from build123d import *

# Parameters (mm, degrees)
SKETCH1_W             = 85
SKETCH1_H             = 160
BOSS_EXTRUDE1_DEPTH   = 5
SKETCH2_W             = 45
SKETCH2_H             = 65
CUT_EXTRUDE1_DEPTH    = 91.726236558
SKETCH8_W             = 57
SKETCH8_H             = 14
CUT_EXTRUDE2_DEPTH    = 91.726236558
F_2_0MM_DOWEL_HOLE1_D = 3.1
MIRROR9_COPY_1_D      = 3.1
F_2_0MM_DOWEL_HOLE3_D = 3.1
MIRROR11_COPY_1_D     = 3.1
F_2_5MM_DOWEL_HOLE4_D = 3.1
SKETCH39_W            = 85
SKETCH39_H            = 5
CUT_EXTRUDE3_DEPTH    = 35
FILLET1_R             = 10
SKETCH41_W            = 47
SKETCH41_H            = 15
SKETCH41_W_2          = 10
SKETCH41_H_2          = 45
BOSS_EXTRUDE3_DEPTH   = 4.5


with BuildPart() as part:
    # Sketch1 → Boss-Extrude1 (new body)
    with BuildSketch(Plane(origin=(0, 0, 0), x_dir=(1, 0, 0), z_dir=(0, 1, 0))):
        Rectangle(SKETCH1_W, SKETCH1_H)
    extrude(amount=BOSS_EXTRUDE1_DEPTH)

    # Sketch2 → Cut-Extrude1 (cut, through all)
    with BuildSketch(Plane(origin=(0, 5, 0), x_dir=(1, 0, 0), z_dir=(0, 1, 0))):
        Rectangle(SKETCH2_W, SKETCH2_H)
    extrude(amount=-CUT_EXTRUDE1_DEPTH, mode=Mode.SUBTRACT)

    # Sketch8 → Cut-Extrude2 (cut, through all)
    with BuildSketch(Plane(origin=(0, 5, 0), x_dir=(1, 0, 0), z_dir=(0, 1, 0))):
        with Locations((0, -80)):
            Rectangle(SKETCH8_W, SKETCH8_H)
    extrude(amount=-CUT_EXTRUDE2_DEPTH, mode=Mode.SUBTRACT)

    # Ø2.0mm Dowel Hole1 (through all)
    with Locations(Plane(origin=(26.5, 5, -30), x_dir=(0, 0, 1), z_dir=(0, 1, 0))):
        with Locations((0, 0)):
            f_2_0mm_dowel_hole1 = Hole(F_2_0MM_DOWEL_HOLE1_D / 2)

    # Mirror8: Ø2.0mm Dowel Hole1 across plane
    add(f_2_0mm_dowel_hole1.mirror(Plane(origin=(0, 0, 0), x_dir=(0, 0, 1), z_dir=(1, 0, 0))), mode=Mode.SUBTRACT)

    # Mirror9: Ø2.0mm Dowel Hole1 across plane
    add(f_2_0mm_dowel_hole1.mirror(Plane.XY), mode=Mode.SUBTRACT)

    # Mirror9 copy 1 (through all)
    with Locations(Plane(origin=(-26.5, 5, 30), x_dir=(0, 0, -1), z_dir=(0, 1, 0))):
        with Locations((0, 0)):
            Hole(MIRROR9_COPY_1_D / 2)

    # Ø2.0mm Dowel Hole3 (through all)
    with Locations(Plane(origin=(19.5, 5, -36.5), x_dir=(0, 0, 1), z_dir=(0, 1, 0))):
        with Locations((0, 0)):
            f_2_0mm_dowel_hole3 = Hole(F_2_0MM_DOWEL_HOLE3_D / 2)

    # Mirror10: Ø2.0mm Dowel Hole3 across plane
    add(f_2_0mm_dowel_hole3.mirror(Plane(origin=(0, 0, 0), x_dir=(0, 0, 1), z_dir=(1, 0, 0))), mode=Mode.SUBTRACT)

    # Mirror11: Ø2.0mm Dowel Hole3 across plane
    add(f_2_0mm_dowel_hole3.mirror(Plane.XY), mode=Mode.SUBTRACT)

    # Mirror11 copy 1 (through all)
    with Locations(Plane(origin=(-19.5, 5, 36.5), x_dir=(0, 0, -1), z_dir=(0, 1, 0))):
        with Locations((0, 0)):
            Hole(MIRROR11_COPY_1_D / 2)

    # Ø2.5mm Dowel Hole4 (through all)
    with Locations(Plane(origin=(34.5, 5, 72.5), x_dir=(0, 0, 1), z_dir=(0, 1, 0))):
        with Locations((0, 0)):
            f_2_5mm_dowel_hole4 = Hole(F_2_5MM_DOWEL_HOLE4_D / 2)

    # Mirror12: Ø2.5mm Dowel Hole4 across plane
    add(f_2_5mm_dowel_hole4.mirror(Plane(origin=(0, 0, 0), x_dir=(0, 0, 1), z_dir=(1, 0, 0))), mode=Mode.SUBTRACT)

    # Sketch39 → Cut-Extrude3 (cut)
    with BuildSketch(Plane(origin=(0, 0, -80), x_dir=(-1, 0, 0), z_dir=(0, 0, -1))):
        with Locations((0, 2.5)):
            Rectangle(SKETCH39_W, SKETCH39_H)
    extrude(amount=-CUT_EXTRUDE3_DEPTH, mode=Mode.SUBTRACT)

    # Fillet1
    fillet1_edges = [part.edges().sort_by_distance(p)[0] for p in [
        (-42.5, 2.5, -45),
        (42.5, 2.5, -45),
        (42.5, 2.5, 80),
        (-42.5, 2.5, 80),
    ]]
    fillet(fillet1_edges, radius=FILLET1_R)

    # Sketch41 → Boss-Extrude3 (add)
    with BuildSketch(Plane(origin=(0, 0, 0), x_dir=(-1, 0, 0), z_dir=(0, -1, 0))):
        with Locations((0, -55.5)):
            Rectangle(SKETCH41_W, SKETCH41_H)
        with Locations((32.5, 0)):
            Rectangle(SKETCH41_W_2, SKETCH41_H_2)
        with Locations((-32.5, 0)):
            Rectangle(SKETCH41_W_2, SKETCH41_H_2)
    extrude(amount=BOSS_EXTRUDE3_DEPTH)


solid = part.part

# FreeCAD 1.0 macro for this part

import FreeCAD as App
import Part
import Sketcher
from FreeCAD import Vector


def edges_at(feature, points):
    """Names of the edges that pass closest to the given points."""
    edges = feature.Shape.Edges
    near = lambda p: min(range(len(edges)), key=lambda i: edges[i].distToShape(Part.Vertex(*p))[0])
    return sorted({f"Edge{near(p) + 1}" for p in points})


def add_polygon(sketch, points):
    """Adds a closed chain of lines whose ends are joined by coincident constraints."""
    first, n = sketch.GeometryCount, len(points)
    for a, b in zip(points, points[1:] + points[:1]):
        sketch.addGeometry(Part.LineSegment(App.Vector(*a, 0), App.Vector(*b, 0)), False)
    for i in range(n):
        sketch.addConstraint(Sketcher.Constraint("Coincident", first + i, 2, first + (i + 1) % n, 1))

doc = App.newDocument("Part")
body = doc.addObject("PartDesign::Body", "Body")

# Sketch on XZ plane
sketch1 = body.newObject("Sketcher::SketchObject", "Sketch")
sketch1.AttachmentSupport = (doc.getObject("XZ_Plane"), [""])
sketch1.MapMode = "FlatFace"
add_polygon(sketch1, [(-42.5, -80), (-42.5, 80), (42.5, 80), (42.5, -80)])  # lines 0-3
sketch1.addConstraint(Sketcher.Constraint("Vertical", 0))
sketch1.addConstraint(Sketcher.Constraint("Horizontal", 1))
sketch1.addConstraint(Sketcher.Constraint("Vertical", 2))
sketch1.addConstraint(Sketcher.Constraint("Horizontal", 3))
sketch1.addConstraint(Sketcher.Constraint("Symmetric", 0, 2, 2, 2, -1, 1))
sketch1.addConstraint(Sketcher.Constraint("DistanceX", 1, 1, 1, 2, 85.0))
sketch1.addConstraint(Sketcher.Constraint("DistanceY", 0, 1, 0, 2, 160.0))
pad1 = body.newObject("PartDesign::Pad", "Pad")
pad1.Profile = sketch1
pad1.Length = 5
pad1.Reversed = True

# Sketch on XZ plane
sketch2 = body.newObject("Sketcher::SketchObject", "Sketch001")
sketch2.AttachmentSupport = (doc.getObject("XZ_Plane"), [""])
sketch2.MapMode = "FlatFace"
sketch2.AttachmentOffset = App.Placement(Vector(0, 0, -5), App.Rotation())
add_polygon(sketch2, [(-22.5, -32.5), (-22.5, 32.5), (22.5, 32.5), (22.5, -32.5)])  # lines 0-3
sketch2.addConstraint(Sketcher.Constraint("Vertical", 0))
sketch2.addConstraint(Sketcher.Constraint("Horizontal", 1))
sketch2.addConstraint(Sketcher.Constraint("Vertical", 2))
sketch2.addConstraint(Sketcher.Constraint("Horizontal", 3))
sketch2.addConstraint(Sketcher.Constraint("Symmetric", 0, 2, 2, 2, -1, 1))
sketch2.addConstraint(Sketcher.Constraint("DistanceX", 1, 1, 1, 2, 45.0))
sketch2.addConstraint(Sketcher.Constraint("DistanceY", 0, 1, 0, 2, 65.0))
pocket1 = body.newObject("PartDesign::Pocket", "Pocket")
pocket1.Profile = sketch2
pocket1.Type = "ThroughAll"
pocket1.Reversed = True

# Sketch on XZ plane
sketch3 = body.newObject("Sketcher::SketchObject", "Sketch002")
sketch3.AttachmentSupport = (doc.getObject("XZ_Plane"), [""])
sketch3.MapMode = "FlatFace"
sketch3.AttachmentOffset = App.Placement(Vector(0, 0, -5), App.Rotation())
add_polygon(sketch3, [(-28.5, 73), (-28.5, 87), (28.5, 87), (28.5, 73)])  # lines 0-3
sketch3.addConstraint(Sketcher.Constraint("Vertical", 0))
sketch3.addConstraint(Sketcher.Constraint("Horizontal", 1))
sketch3.addConstraint(Sketcher.Constraint("Vertical", 2))
sketch3.addConstraint(Sketcher.Constraint("Horizontal", 3))
sketch3.addConstraint(Sketcher.Constraint("DistanceX", 1, 1, 1, 2, 57.0))
sketch3.addConstraint(Sketcher.Constraint("DistanceY", 0, 1, 0, 2, 14.0))
sketch3.addConstraint(Sketcher.Constraint("DistanceY", -1, 1, 0, 2, 87.0))
sketch3.addConstraint(Sketcher.Constraint("DistanceX", 0, 2, -1, 1, 28.5))
pocket2 = body.newObject("PartDesign::Pocket", "Pocket001")
pocket2.Profile = sketch3
pocket2.Type = "ThroughAll"
pocket2.Reversed = True

# Sketch on XZ plane
sketch4 = body.newObject("Sketcher::SketchObject", "Sketch003")
sketch4.AttachmentSupport = (doc.getObject("XZ_Plane"), [""])
sketch4.MapMode = "FlatFace"
sketch4.AttachmentOffset = App.Placement(Vector(0, 0, -5), App.Rotation())
sketch4.addGeometry(Part.Circle(Vector(26.5, -30, 0), Vector(0, 0, 1), 1.55), False)
sketch4.addConstraint(Sketcher.Constraint("Diameter", 0, 3.1))
sketch4.addConstraint(Sketcher.Constraint("DistanceY", 0, 3, -1, 1, 30.0))
sketch4.addConstraint(Sketcher.Constraint("DistanceX", -1, 1, 0, 3, 26.5))
doc.recompute()
hole = body.newObject("PartDesign::Hole", "Hole")
hole.Profile = sketch4
hole.ThreadType = "None"
hole.Diameter = 3.1
hole.DepthType = "ThroughAll"
hole.Reversed = True
doc.recompute()

mirrored = body.newObject("PartDesign::Mirrored", "Mirrored")
mirrored.Originals = [hole]
mirrored.MirrorPlane = (doc.getObject("YZ_Plane"), [""])
body.Tip = mirrored
doc.recompute()

mirrored2 = body.newObject("PartDesign::Mirrored", "Mirrored001")
mirrored2.Originals = [hole]
mirrored2.MirrorPlane = (doc.getObject("XY_Plane"), [""])
body.Tip = mirrored2

# Sketch on XZ plane
sketch5 = body.newObject("Sketcher::SketchObject", "Sketch004")
sketch5.AttachmentSupport = (doc.getObject("XZ_Plane"), [""])
sketch5.MapMode = "FlatFace"
sketch5.AttachmentOffset = App.Placement(Vector(0, 0, -5), App.Rotation())
sketch5.addGeometry(Part.Circle(Vector(-26.5, 30, 0), Vector(0, 0, 1), 1.55), False)
sketch5.addConstraint(Sketcher.Constraint("Diameter", 0, 3.1))
sketch5.addConstraint(Sketcher.Constraint("DistanceY", -1, 1, 0, 3, 30.0))
sketch5.addConstraint(Sketcher.Constraint("DistanceX", 0, 3, -1, 1, 26.5))
doc.recompute()
hole2 = body.newObject("PartDesign::Hole", "Hole001")
hole2.Profile = sketch5
hole2.ThreadType = "None"
hole2.Diameter = 3.1
hole2.DepthType = "ThroughAll"
hole2.Reversed = True

# Sketch on XZ plane
sketch6 = body.newObject("Sketcher::SketchObject", "Sketch005")
sketch6.AttachmentSupport = (doc.getObject("XZ_Plane"), [""])
sketch6.MapMode = "FlatFace"
sketch6.AttachmentOffset = App.Placement(Vector(0, 0, -5), App.Rotation())
sketch6.addGeometry(Part.Circle(Vector(19.5, -36.5, 0), Vector(0, 0, 1), 1.55), False)
sketch6.addConstraint(Sketcher.Constraint("Diameter", 0, 3.1))
sketch6.addConstraint(Sketcher.Constraint("DistanceX", -1, 1, 0, 3, 19.5))
sketch6.addConstraint(Sketcher.Constraint("DistanceY", 0, 3, -1, 1, 36.5))
doc.recompute()
hole3 = body.newObject("PartDesign::Hole", "Hole002")
hole3.Profile = sketch6
hole3.ThreadType = "None"
hole3.Diameter = 3.1
hole3.DepthType = "ThroughAll"
hole3.Reversed = True
doc.recompute()

mirrored3 = body.newObject("PartDesign::Mirrored", "Mirrored002")
mirrored3.Originals = [hole3]
mirrored3.MirrorPlane = (doc.getObject("YZ_Plane"), [""])
body.Tip = mirrored3
doc.recompute()

mirrored4 = body.newObject("PartDesign::Mirrored", "Mirrored003")
mirrored4.Originals = [hole3]
mirrored4.MirrorPlane = (doc.getObject("XY_Plane"), [""])
body.Tip = mirrored4

# Sketch on XZ plane
sketch7 = body.newObject("Sketcher::SketchObject", "Sketch006")
sketch7.AttachmentSupport = (doc.getObject("XZ_Plane"), [""])
sketch7.MapMode = "FlatFace"
sketch7.AttachmentOffset = App.Placement(Vector(0, 0, -5), App.Rotation())
sketch7.addGeometry(Part.Circle(Vector(-19.5, 36.5, 0), Vector(0, 0, 1), 1.55), False)
sketch7.addConstraint(Sketcher.Constraint("Diameter", 0, 3.1))
sketch7.addConstraint(Sketcher.Constraint("DistanceX", 0, 3, -1, 1, 19.5))
sketch7.addConstraint(Sketcher.Constraint("DistanceY", -1, 1, 0, 3, 36.5))
doc.recompute()
hole4 = body.newObject("PartDesign::Hole", "Hole003")
hole4.Profile = sketch7
hole4.ThreadType = "None"
hole4.Diameter = 3.1
hole4.DepthType = "ThroughAll"
hole4.Reversed = True

# Sketch on XZ plane
sketch8 = body.newObject("Sketcher::SketchObject", "Sketch007")
sketch8.AttachmentSupport = (doc.getObject("XZ_Plane"), [""])
sketch8.MapMode = "FlatFace"
sketch8.AttachmentOffset = App.Placement(Vector(0, 0, -5), App.Rotation())
sketch8.addGeometry(Part.Circle(Vector(34.5, 72.5, 0), Vector(0, 0, 1), 1.55), False)
sketch8.addConstraint(Sketcher.Constraint("Diameter", 0, 3.1))
sketch8.addConstraint(Sketcher.Constraint("DistanceX", -1, 1, 0, 3, 34.5))
sketch8.addConstraint(Sketcher.Constraint("DistanceY", -1, 1, 0, 3, 72.5))
doc.recompute()
hole5 = body.newObject("PartDesign::Hole", "Hole004")
hole5.Profile = sketch8
hole5.ThreadType = "None"
hole5.Diameter = 3.1
hole5.DepthType = "ThroughAll"
hole5.Reversed = True
doc.recompute()

mirrored5 = body.newObject("PartDesign::Mirrored", "Mirrored004")
mirrored5.Originals = [hole5]
mirrored5.MirrorPlane = (doc.getObject("YZ_Plane"), [""])
body.Tip = mirrored5

# Sketch on XY plane
sketch9 = body.newObject("Sketcher::SketchObject", "Sketch008")
sketch9.AttachmentSupport = (doc.getObject("XY_Plane"), [""])
sketch9.MapMode = "FlatFace"
sketch9.AttachmentOffset = App.Placement(Vector(0, 0, -80), App.Rotation())
add_polygon(sketch9, [(42.5, 5), (42.5, 0), (-42.5, 0), (-42.5, 5)])  # lines 0-3
sketch9.addConstraint(Sketcher.Constraint("Vertical", 0))
sketch9.addConstraint(Sketcher.Constraint("Horizontal", 1))
sketch9.addConstraint(Sketcher.Constraint("Vertical", 2))
sketch9.addConstraint(Sketcher.Constraint("Horizontal", 3))
sketch9.addConstraint(Sketcher.Constraint("Symmetric", 0, 2, 1, 2, -1, 1))
sketch9.addConstraint(Sketcher.Constraint("DistanceX", 1, 2, 1, 1, 85.0))
sketch9.addConstraint(Sketcher.Constraint("DistanceY", 0, 2, 0, 1, 5.0))
pocket3 = body.newObject("PartDesign::Pocket", "Pocket002")
pocket3.Profile = sketch9
pocket3.Length = 35
pocket3.Reversed = True
doc.recompute()

fillet = body.newObject("PartDesign::Fillet", "Fillet")
fillet.Base = (pocket3, edges_at(pocket3, [
    (-42.5, 2.5, -45),
    (42.5, 2.5, -45),
    (42.5, 2.5, 80),
    (-42.5, 2.5, 80),
]))
fillet.Radius = 10

# Sketch on XZ plane
sketch10 = body.newObject("Sketcher::SketchObject", "Sketch009")
sketch10.AttachmentSupport = (doc.getObject("XZ_Plane"), [""])
sketch10.MapMode = "FlatFace"
add_polygon(sketch10, [(23.5, 48), (23.5, 63), (-23.5, 63), (-23.5, 48)])  # lines 0-3
add_polygon(sketch10, [(-27.5, -22.5), (-27.5, 22.5), (-37.5, 22.5), (-37.5, -22.5)])  # lines 4-7
add_polygon(sketch10, [(37.5, -22.5), (37.5, 22.5), (27.5, 22.5), (27.5, -22.5)])  # lines 8-11
sketch10.addConstraint(Sketcher.Constraint("Vertical", 0))
sketch10.addConstraint(Sketcher.Constraint("Horizontal", 1))
sketch10.addConstraint(Sketcher.Constraint("Vertical", 2))
sketch10.addConstraint(Sketcher.Constraint("Horizontal", 3))
sketch10.addConstraint(Sketcher.Constraint("Vertical", 4))
sketch10.addConstraint(Sketcher.Constraint("Horizontal", 5))
sketch10.addConstraint(Sketcher.Constraint("Vertical", 6))
sketch10.addConstraint(Sketcher.Constraint("Horizontal", 7))
sketch10.addConstraint(Sketcher.Constraint("Vertical", 8))
sketch10.addConstraint(Sketcher.Constraint("Horizontal", 9))
sketch10.addConstraint(Sketcher.Constraint("Vertical", 10))
sketch10.addConstraint(Sketcher.Constraint("Horizontal", 11))
sketch10.addConstraint(Sketcher.Constraint("Symmetric", 6, 2, 8, 2, -1, 1))
sketch10.addConstraint(Sketcher.Constraint("Symmetric", 4, 2, 10, 2, -1, 1))
sketch10.addConstraint(Sketcher.Constraint("Horizontal", 5, 2, 8, 2))
sketch10.addConstraint(Sketcher.Constraint("DistanceX", 1, 2, 1, 1, 47.0))
sketch10.addConstraint(Sketcher.Constraint("DistanceX", 5, 2, 5, 1, 10.0))
sketch10.addConstraint(Sketcher.Constraint("DistanceY", 0, 1, 0, 2, 15.0))
sketch10.addConstraint(Sketcher.Constraint("DistanceY", 4, 1, 4, 2, 45.0))
sketch10.addConstraint(Sketcher.Constraint("DistanceY", -1, 1, 0, 2, 63.0))
sketch10.addConstraint(Sketcher.Constraint("DistanceX", 4, 2, 2, 2, 4.0))
sketch10.addConstraint(Sketcher.Constraint("DistanceX", 3, 2, 8, 2, 14.0))
pad2 = body.newObject("PartDesign::Pad", "Pad001")
pad2.Profile = sketch10
pad2.Length = 4.5

doc.recompute()
